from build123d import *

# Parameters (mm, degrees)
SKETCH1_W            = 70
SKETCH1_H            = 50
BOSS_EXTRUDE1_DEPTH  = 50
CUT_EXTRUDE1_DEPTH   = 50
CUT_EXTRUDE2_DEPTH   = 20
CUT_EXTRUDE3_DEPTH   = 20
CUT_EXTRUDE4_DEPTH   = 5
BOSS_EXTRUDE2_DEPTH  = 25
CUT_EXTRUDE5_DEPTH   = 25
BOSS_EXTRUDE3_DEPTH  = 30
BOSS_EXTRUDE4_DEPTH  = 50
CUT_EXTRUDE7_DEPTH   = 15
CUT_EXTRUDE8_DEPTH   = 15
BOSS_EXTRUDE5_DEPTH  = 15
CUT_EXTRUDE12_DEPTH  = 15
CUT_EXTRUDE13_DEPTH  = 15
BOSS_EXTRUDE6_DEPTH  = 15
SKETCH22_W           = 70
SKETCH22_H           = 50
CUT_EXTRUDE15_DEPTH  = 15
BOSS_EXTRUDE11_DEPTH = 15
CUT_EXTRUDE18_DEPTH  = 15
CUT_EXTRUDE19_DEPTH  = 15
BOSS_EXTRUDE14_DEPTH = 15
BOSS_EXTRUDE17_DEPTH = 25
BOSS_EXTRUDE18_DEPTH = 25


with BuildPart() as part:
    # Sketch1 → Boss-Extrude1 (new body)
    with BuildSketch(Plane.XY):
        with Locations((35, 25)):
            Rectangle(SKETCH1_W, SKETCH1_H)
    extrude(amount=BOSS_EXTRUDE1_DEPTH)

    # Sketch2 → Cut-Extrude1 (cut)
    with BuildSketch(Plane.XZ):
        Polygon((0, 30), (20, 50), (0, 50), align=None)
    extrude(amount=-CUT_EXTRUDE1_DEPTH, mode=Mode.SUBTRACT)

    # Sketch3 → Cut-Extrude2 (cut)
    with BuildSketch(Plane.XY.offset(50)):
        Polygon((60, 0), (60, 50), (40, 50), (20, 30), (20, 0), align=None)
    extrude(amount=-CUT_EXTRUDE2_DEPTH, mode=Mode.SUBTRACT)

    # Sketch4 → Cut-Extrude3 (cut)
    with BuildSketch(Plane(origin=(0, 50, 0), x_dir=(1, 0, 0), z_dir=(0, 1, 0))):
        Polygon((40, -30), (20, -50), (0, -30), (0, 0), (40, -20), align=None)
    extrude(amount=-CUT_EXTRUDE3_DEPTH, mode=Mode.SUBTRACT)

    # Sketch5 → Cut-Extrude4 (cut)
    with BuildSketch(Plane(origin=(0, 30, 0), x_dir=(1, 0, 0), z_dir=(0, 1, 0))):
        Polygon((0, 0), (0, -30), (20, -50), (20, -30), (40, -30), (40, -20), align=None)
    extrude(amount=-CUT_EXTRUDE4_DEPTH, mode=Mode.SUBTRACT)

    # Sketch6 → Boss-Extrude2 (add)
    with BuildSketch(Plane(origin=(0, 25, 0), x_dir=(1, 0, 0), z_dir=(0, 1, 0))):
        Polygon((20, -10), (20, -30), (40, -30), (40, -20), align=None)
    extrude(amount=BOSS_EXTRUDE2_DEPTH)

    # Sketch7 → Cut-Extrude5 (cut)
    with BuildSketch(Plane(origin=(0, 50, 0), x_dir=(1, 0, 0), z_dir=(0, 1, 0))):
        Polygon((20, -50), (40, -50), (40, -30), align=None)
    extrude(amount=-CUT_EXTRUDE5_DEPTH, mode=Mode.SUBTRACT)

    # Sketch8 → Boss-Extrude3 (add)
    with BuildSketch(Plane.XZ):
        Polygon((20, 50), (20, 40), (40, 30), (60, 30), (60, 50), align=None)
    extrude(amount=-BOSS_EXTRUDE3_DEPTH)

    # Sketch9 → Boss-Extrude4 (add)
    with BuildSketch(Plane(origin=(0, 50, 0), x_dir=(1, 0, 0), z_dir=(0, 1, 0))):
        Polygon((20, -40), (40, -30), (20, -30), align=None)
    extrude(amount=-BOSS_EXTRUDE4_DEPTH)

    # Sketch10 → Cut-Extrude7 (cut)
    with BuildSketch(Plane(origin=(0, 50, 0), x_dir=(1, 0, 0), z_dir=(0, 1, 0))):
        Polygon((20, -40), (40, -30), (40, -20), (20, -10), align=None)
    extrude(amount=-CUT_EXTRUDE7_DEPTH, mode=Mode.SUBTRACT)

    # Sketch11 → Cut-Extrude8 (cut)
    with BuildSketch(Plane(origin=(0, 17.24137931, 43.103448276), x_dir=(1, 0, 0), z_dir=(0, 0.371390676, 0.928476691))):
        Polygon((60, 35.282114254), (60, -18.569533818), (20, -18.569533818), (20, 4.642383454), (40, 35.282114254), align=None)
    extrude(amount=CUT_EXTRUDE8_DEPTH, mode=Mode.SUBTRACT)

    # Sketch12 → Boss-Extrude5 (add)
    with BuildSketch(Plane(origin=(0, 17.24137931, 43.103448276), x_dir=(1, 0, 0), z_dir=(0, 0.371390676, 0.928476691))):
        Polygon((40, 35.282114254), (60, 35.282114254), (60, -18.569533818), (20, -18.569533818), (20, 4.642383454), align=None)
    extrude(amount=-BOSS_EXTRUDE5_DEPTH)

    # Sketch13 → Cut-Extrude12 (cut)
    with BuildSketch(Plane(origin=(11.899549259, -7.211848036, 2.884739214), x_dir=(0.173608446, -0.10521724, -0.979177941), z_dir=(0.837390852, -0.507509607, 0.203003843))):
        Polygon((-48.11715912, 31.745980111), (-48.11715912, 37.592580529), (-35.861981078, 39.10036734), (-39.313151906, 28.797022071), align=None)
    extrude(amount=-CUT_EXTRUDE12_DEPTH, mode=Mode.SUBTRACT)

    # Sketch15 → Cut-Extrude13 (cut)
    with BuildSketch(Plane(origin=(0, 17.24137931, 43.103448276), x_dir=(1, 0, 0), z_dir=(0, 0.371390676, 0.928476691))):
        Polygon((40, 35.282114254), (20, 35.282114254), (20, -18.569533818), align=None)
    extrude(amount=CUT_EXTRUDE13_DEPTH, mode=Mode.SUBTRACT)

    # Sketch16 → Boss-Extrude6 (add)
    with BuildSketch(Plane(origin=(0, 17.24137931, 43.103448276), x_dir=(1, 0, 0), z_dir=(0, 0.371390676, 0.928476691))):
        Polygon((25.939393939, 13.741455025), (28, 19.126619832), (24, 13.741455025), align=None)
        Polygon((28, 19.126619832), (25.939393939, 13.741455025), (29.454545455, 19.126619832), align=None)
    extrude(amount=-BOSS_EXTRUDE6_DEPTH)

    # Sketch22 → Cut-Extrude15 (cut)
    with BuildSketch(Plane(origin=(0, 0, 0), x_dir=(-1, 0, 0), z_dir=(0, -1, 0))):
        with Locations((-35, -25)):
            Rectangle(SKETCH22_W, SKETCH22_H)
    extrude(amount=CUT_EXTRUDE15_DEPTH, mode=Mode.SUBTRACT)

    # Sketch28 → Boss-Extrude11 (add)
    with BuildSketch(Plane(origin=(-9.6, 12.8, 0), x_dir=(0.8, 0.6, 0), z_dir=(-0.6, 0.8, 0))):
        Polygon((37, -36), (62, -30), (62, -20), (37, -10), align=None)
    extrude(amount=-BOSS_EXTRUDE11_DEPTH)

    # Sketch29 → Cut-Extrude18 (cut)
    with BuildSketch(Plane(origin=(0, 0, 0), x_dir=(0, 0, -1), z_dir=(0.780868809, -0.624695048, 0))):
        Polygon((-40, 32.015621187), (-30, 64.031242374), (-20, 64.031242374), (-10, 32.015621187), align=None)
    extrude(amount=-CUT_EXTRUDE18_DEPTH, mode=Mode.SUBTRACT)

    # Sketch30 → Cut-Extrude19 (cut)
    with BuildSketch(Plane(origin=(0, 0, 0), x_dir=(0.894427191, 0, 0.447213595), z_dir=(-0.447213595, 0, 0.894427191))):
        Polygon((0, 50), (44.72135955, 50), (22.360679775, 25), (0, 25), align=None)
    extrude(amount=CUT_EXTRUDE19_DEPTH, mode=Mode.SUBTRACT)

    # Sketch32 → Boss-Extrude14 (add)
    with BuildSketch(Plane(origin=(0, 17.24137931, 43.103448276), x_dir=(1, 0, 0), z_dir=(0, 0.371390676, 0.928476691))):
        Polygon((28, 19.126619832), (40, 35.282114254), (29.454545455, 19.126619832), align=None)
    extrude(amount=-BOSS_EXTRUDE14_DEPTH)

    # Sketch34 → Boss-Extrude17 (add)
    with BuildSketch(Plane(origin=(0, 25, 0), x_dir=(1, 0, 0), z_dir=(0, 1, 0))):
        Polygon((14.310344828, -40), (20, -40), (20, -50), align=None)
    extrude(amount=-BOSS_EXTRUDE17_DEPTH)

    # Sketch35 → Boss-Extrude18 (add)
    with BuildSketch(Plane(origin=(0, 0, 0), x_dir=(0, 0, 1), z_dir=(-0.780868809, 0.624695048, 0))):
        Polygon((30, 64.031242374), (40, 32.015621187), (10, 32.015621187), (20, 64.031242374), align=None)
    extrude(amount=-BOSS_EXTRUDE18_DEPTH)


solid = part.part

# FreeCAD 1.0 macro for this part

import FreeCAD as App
import Part
import Sketcher
Q = App.Units.Quantity

doc = App.newDocument("Part")
body = doc.addObject("PartDesign::Body", "Body")
body.AllowCompound = True

sketch1 = doc.addObject("Sketcher::SketchObject", "Sketch")
body.addObject(sketch1)
sketch1.AttachmentSupport = (doc.XY_Plane, [""])
sketch1.MapMode = "FlatFace"
sketch1.addGeometry([
    Part.LineSegment(App.Vector(0, 50, 0), App.Vector(0, 0, 0)),
    Part.LineSegment(App.Vector(0, 0, 0), App.Vector(70, 0, 0)),
    Part.LineSegment(App.Vector(70, 0, 0), App.Vector(70, 50, 0)),
    Part.LineSegment(App.Vector(70, 50, 0), App.Vector(0, 50, 0)),
], False)
sketch1.addConstraint([
    Sketcher.Constraint("Coincident", 0, 2, 1, 1),
    Sketcher.Constraint("Coincident", 1, 2, 2, 1),
    Sketcher.Constraint("Coincident", 2, 2, 3, 1),
    Sketcher.Constraint("Coincident", 3, 2, 0, 1),
    Sketcher.Constraint("Vertical", 0),
    Sketcher.Constraint("Horizontal", 1),
    Sketcher.Constraint("Vertical", 2),
    Sketcher.Constraint("Horizontal", 3),
    Sketcher.Constraint("Coincident", 0, 2, -1, 1),
    Sketcher.Constraint("DistanceX", 1, 1, 1, 2, 70.0),
    Sketcher.Constraint("DistanceY", 0, 2, 0, 1, 50.0),
])
pad1 = doc.addObject("PartDesign::Pad", "Pad")
body.addObject(pad1)
pad1.Profile = sketch1
pad1.Length = 50

sketch2 = doc.addObject("Sketcher::SketchObject", "Sketch001")
body.addObject(sketch2)
sketch2.AttachmentSupport = (doc.XZ_Plane, [""])
sketch2.MapMode = "FlatFace"
sketch2.addGeometry([
    Part.LineSegment(App.Vector(0, 30, 0), App.Vector(20, 50, 0)),
    Part.LineSegment(App.Vector(20, 50, 0), App.Vector(0, 50, 0)),
    Part.LineSegment(App.Vector(0, 50, 0), App.Vector(0, 30, 0)),
], False)
sketch2.addConstraint([
    Sketcher.Constraint("Coincident", 0, 2, 1, 1),
    Sketcher.Constraint("Coincident", 1, 2, 2, 1),
    Sketcher.Constraint("Coincident", 2, 2, 0, 1),
    Sketcher.Constraint("Horizontal", 1),
    Sketcher.Constraint("Vertical", 2),
    Sketcher.Constraint("PointOnObject", 1, 2, -2),
    Sketcher.Constraint("Equal", 1, 2),
    Sketcher.Constraint("DistanceX", 1, 2, 1, 1, 20.0),
    Sketcher.Constraint("DistanceY", -1, 1, 0, 2, 50.0),
])
pocket1 = doc.addObject("PartDesign::Pocket", "Pocket")
body.addObject(pocket1)
pocket1.Profile = sketch2
pocket1.Length = 50

sketch3 = doc.addObject("Sketcher::SketchObject", "Sketch002")
body.addObject(sketch3)
sketch3.AttachmentSupport = (doc.XY_Plane, [""])
sketch3.MapMode = "FlatFace"
sketch3.AttachmentOffset = App.Placement(App.Vector(0, 0, 50), App.Rotation())
sketch3.addGeometry([
    Part.LineSegment(App.Vector(60, 0, 0), App.Vector(60, 50, 0)),
    Part.LineSegment(App.Vector(60, 50, 0), App.Vector(40, 50, 0)),
    Part.LineSegment(App.Vector(40, 50, 0), App.Vector(20, 30, 0)),
    Part.LineSegment(App.Vector(20, 30, 0), App.Vector(20, 0, 0)),
    Part.LineSegment(App.Vector(20, 0, 0), App.Vector(60, 0, 0)),
], False)
sketch3.addConstraint([
    Sketcher.Constraint("Coincident", 0, 2, 1, 1),
    Sketcher.Constraint("Coincident", 1, 2, 2, 1),
    Sketcher.Constraint("Coincident", 2, 2, 3, 1),
    Sketcher.Constraint("Coincident", 3, 2, 4, 1),
    Sketcher.Constraint("Coincident", 4, 2, 0, 1),
    Sketcher.Constraint("Vertical", 0),
    Sketcher.Constraint("Horizontal", 1),
    Sketcher.Constraint("Vertical", 3),
    Sketcher.Constraint("Horizontal", 4),
    Sketcher.Constraint("PointOnObject", 3, 2, -1),
    Sketcher.Constraint("DistanceX", 1, 2, 1, 1, 20.0),
    Sketcher.Constraint("DistanceX", 4, 1, 4, 2, 40.0),
    Sketcher.Constraint("DistanceY", 0, 1, 0, 2, 50.0),
    Sketcher.Constraint("DistanceY", 3, 2, 3, 1, 30.0),
    Sketcher.Constraint("DistanceX", -1, 1, 0, 2, 60.0),
])
pocket2 = doc.addObject("PartDesign::Pocket", "Pocket001")
body.addObject(pocket2)
pocket2.Profile = sketch3
pocket2.Length = 20

sketch4 = doc.addObject("Sketcher::SketchObject", "Sketch003")
body.addObject(sketch4)
sketch4.AttachmentSupport = (doc.XZ_Plane, [""])
sketch4.MapMode = "FlatFace"
sketch4.AttachmentOffset = App.Placement(App.Vector(0, 0, -50), App.Rotation())
sketch4.addGeometry([
    Part.LineSegment(App.Vector(20, 50, 0), App.Vector(40, 30, 0)),
    Part.LineSegment(App.Vector(40, 30, 0), App.Vector(40, 20, 0)),
    Part.LineSegment(App.Vector(40, 20, 0), App.Vector(0, 0, 0)),
    Part.LineSegment(App.Vector(0, 0, 0), App.Vector(0, 30, 0)),
    Part.LineSegment(App.Vector(0, 30, 0), App.Vector(20, 50, 0)),
], False)
sketch4.addConstraint([
    Sketcher.Constraint("Coincident", 0, 2, 1, 1),
    Sketcher.Constraint("Coincident", 1, 2, 2, 1),
    Sketcher.Constraint("Coincident", 2, 2, 3, 1),
    Sketcher.Constraint("Coincident", 3, 2, 4, 1),
    Sketcher.Constraint("Coincident", 4, 2, 0, 1),
    Sketcher.Constraint("Vertical", 1),
    Sketcher.Constraint("Vertical", 3),
    Sketcher.Constraint("Coincident", 2, 2, -1, 1),
    Sketcher.Constraint("Perpendicular", 0, 4),
    Sketcher.Constraint("Horizontal", 0, 2, 3, 2),
    Sketcher.Constraint("Equal", 0, 4),
    Sketcher.Constraint("DistanceY", 1, 2, 1, 1, 10.0),
    Sketcher.Constraint("DistanceY", 3, 1, 3, 2, 30.0),
    Sketcher.Constraint("DistanceX", -1, 1, 0, 2, 40.0),
])
pocket3 = doc.addObject("PartDesign::Pocket", "Pocket002")
body.addObject(pocket3)
pocket3.Profile = sketch4
pocket3.Length = 20
pocket3.Reversed = True

sketch5 = doc.addObject("Sketcher::SketchObject", "Sketch004")
body.addObject(sketch5)
sketch5.AttachmentSupport = (doc.XZ_Plane, [""])
sketch5.MapMode = "FlatFace"
sketch5.AttachmentOffset = App.Placement(App.Vector(0, 0, -30), App.Rotation())
sketch5.addGeometry([
    Part.LineSegment(App.Vector(0, 0, 0), App.Vector(0, 30, 0)),
    Part.LineSegment(App.Vector(0, 30, 0), App.Vector(20, 50, 0)),
    Part.LineSegment(App.Vector(20, 50, 0), App.Vector(20, 30, 0)),
    Part.LineSegment(App.Vector(20, 30, 0), App.Vector(40, 30, 0)),
    Part.LineSegment(App.Vector(40, 30, 0), App.Vector(40, 20, 0)),
    Part.LineSegment(App.Vector(40, 20, 0), App.Vector(0, 0, 0)),
], False)
sketch5.addConstraint([
    Sketcher.Constraint("Coincident", 0, 2, 1, 1),
    Sketcher.Constraint("Coincident", 1, 2, 2, 1),
    Sketcher.Constraint("Coincident", 2, 2, 3, 1),
    Sketcher.Constraint("Coincident", 3, 2, 4, 1),
    Sketcher.Constraint("Coincident", 4, 2, 5, 1),
    Sketcher.Constraint("Coincident", 5, 2, 0, 1),
    Sketcher.Constraint("Vertical", 0),
    Sketcher.Constraint("Vertical", 2),
    Sketcher.Constraint("Horizontal", 3),
    Sketcher.Constraint("Vertical", 4),
    Sketcher.Constraint("Coincident", 5, 2, -1, 1),
    Sketcher.Constraint("Horizontal", 0, 2, 2, 2),
    Sketcher.Constraint("Equal", 3, 2),
    Sketcher.Constraint("DistanceX", 3, 1, 3, 2, 20.0),
    Sketcher.Constraint("DistanceY", 0, 1, 0, 2, 30.0),
    Sketcher.Constraint("DistanceY", 4, 2, 4, 1, 10.0),
    Sketcher.Constraint("Angle", 1, Q("45 deg")),
])
pocket4 = doc.addObject("PartDesign::Pocket", "Pocket003")
body.addObject(pocket4)
pocket4.Profile = sketch5
pocket4.Length = 5
pocket4.Reversed = True

sketch6 = doc.addObject("Sketcher::SketchObject", "Sketch005")
body.addObject(sketch6)
sketch6.AttachmentSupport = (doc.XZ_Plane, [""])
sketch6.MapMode = "FlatFace"
sketch6.AttachmentOffset = App.Placement(App.Vector(0, 0, -25), App.Rotation())
sketch6.addGeometry([
    Part.LineSegment(App.Vector(20, 10, 0), App.Vector(20, 30, 0)),
    Part.LineSegment(App.Vector(20, 30, 0), App.Vector(40, 30, 0)),
    Part.LineSegment(App.Vector(40, 30, 0), App.Vector(40, 20, 0)),
    Part.LineSegment(App.Vector(40, 20, 0), App.Vector(20, 10, 0)),
], False)
sketch6.addConstraint([
    Sketcher.Constraint("Coincident", 0, 2, 1, 1),
    Sketcher.Constraint("Coincident", 1, 2, 2, 1),
    Sketcher.Constraint("Coincident", 2, 2, 3, 1),
    Sketcher.Constraint("Coincident", 3, 2, 0, 1),
    Sketcher.Constraint("Vertical", 0),
    Sketcher.Constraint("Horizontal", 1),
    Sketcher.Constraint("Vertical", 2),
    Sketcher.Constraint("Equal", 1, 0),
    Sketcher.Constraint("DistanceX", 1, 1, 1, 2, 20.0),
    Sketcher.Constraint("DistanceY", 2, 2, 2, 1, 10.0),
    Sketcher.Constraint("DistanceX", -1, 1, 0, 2, 20.0),
    Sketcher.Constraint("DistanceY", -1, 1, 0, 2, 30.0),
])
pad2 = doc.addObject("PartDesign::Pad", "Pad001")
body.addObject(pad2)
pad2.Profile = sketch6
pad2.Length = 25
pad2.Reversed = True

sketch7 = doc.addObject("Sketcher::SketchObject", "Sketch006")
body.addObject(sketch7)
sketch7.AttachmentSupport = (doc.XZ_Plane, [""])
sketch7.MapMode = "FlatFace"
sketch7.AttachmentOffset = App.Placement(App.Vector(0, 0, -50), App.Rotation())
sketch7.addGeometry([
    Part.LineSegment(App.Vector(20, 50, 0), App.Vector(40, 50, 0)),
    Part.LineSegment(App.Vector(40, 50, 0), App.Vector(40, 30, 0)),
    Part.LineSegment(App.Vector(40, 30, 0), App.Vector(20, 50, 0)),
], False)
sketch7.addConstraint([
    Sketcher.Constraint("Coincident", 0, 2, 1, 1),
    Sketcher.Constraint("Coincident", 1, 2, 2, 1),
    Sketcher.Constraint("Coincident", 2, 2, 0, 1),
    Sketcher.Constraint("Horizontal", 0),
    Sketcher.Constraint("Vertical", 1),
    Sketcher.Constraint("Equal", 0, 1),
    Sketcher.Constraint("DistanceX", 0, 1, 0, 2, 20.0),
    Sketcher.Constraint("DistanceX", -1, 1, 0, 2, 40.0),
    Sketcher.Constraint("DistanceY", -1, 1, 0, 2, 50.0),
])
pocket5 = doc.addObject("PartDesign::Pocket", "Pocket004")
body.addObject(pocket5)
pocket5.Profile = sketch7
pocket5.Length = 25
pocket5.Reversed = True

sketch8 = doc.addObject("Sketcher::SketchObject", "Sketch007")
body.addObject(sketch8)
sketch8.AttachmentSupport = (doc.XZ_Plane, [""])
sketch8.MapMode = "FlatFace"
sketch8.addGeometry([
    Part.LineSegment(App.Vector(20, 50, 0), App.Vector(20, 40, 0)),
    Part.LineSegment(App.Vector(20, 40, 0), App.Vector(40, 30, 0)),
    Part.LineSegment(App.Vector(40, 30, 0), App.Vector(60, 30, 0)),
    Part.LineSegment(App.Vector(60, 30, 0), App.Vector(60, 50, 0)),
    Part.LineSegment(App.Vector(60, 50, 0), App.Vector(20, 50, 0)),
], False)
sketch8.addConstraint([
    Sketcher.Constraint("Coincident", 0, 2, 1, 1),
    Sketcher.Constraint("Coincident", 1, 2, 2, 1),
    Sketcher.Constraint("Coincident", 2, 2, 3, 1),
    Sketcher.Constraint("Coincident", 3, 2, 4, 1),
    Sketcher.Constraint("Coincident", 4, 2, 0, 1),
    Sketcher.Constraint("Vertical", 0),
    Sketcher.Constraint("Horizontal", 2),
    Sketcher.Constraint("Vertical", 3),
    Sketcher.Constraint("Horizontal", 4),
    Sketcher.Constraint("Equal", 2, 3),
    Sketcher.Constraint("DistanceX", 2, 1, 2, 2, 20.0),
    Sketcher.Constraint("DistanceX", 4, 2, 4, 1, 40.0),
    Sketcher.Constraint("DistanceY", 0, 2, 0, 1, 10.0),
    Sketcher.Constraint("DistanceX", -1, 1, 0, 2, 20.0),
    Sketcher.Constraint("DistanceY", -1, 1, 0, 2, 40.0),
])
pad3 = doc.addObject("PartDesign::Pad", "Pad002")
body.addObject(pad3)
pad3.Profile = sketch8
pad3.Length = 30
pad3.Reversed = True

sketch9 = doc.addObject("Sketcher::SketchObject", "Sketch008")
body.addObject(sketch9)
sketch9.AttachmentSupport = (doc.XZ_Plane, [""])
sketch9.MapMode = "FlatFace"
sketch9.AttachmentOffset = App.Placement(App.Vector(0, 0, -50), App.Rotation())
sketch9.addGeometry([
    Part.LineSegment(App.Vector(20, 40, 0), App.Vector(40, 30, 0)),
    Part.LineSegment(App.Vector(40, 30, 0), App.Vector(20, 30, 0)),
    Part.LineSegment(App.Vector(20, 30, 0), App.Vector(20, 40, 0)),
], False)
sketch9.addConstraint([
    Sketcher.Constraint("Coincident", 0, 2, 1, 1),
    Sketcher.Constraint("Coincident", 1, 2, 2, 1),
    Sketcher.Constraint("Coincident", 2, 2, 0, 1),
    Sketcher.Constraint("Horizontal", 1),
    Sketcher.Constraint("Vertical", 2),
    Sketcher.Constraint("DistanceX", 1, 2, 1, 1, 20.0),
    Sketcher.Constraint("DistanceY", 2, 1, 2, 2, 10.0),
    Sketcher.Constraint("DistanceX", -1, 1, 0, 2, 40.0),
    Sketcher.Constraint("DistanceY", -1, 1, 0, 2, 30.0),
])
pad4 = doc.addObject("PartDesign::Pad", "Pad003")
body.addObject(pad4)
pad4.Profile = sketch9
pad4.Length = 50

sketch10 = doc.addObject("Sketcher::SketchObject", "Sketch009")
body.addObject(sketch10)
sketch10.AttachmentSupport = (doc.XZ_Plane, [""])
sketch10.MapMode = "FlatFace"
sketch10.AttachmentOffset = App.Placement(App.Vector(0, 0, -50), App.Rotation())
sketch10.addGeometry([
    Part.LineSegment(App.Vector(20, 40, 0), App.Vector(40, 30, 0)),
    Part.LineSegment(App.Vector(40, 30, 0), App.Vector(40, 20, 0)),
    Part.LineSegment(App.Vector(40, 20, 0), App.Vector(20, 10, 0)),
    Part.LineSegment(App.Vector(20, 10, 0), App.Vector(20, 40, 0)),
], False)
sketch10.addConstraint([
    Sketcher.Constraint("Coincident", 0, 2, 1, 1),
    Sketcher.Constraint("Coincident", 1, 2, 2, 1),
    Sketcher.Constraint("Coincident", 2, 2, 3, 1),
    Sketcher.Constraint("Coincident", 3, 2, 0, 1),
    Sketcher.Constraint("Vertical", 1),
    Sketcher.Constraint("Vertical", 3),
    Sketcher.Constraint("Equal", 0, 2),
    Sketcher.Constraint("DistanceY", 1, 2, 1, 1, 10.0),
    Sketcher.Constraint("DistanceY", 3, 1, 3, 2, 30.0),
    Sketcher.Constraint("DistanceX", -1, 1, 0, 2, 40.0),
    Sketcher.Constraint("DistanceY", -1, 1, 0, 2, 30.0),
    Sketcher.Constraint("DistanceX", -1, 1, 2, 2, 20.0),
])
pocket6 = doc.addObject("PartDesign::Pocket", "Pocket005")
body.addObject(pocket6)
pocket6.Profile = sketch10
pocket6.Length = 15
pocket6.Reversed = True

sketch11 = doc.addObject("Sketcher::SketchObject", "Sketch010")
body.addObject(sketch11)
sketch11.Placement = App.Placement(App.Vector(0, 17.241379, 43.103448), App.Rotation(App.Vector(1, 0, 0), App.Vector(0, 0.928476691, -0.371390676), App.Vector(0, 0.371390676, 0.928476691), "ZXY"))
sketch11.addGeometry([
    Part.LineSegment(App.Vector(60, -19, 0), App.Vector(60, 35, 0)),
    Part.LineSegment(App.Vector(60, 35, 0), App.Vector(40, 35, 0)),
    Part.LineSegment(App.Vector(40, 35, 0), App.Vector(20, 5, 0)),
    Part.LineSegment(App.Vector(20, 5, 0), App.Vector(20, -19, 0)),
    Part.LineSegment(App.Vector(20, -19, 0), App.Vector(60, -19, 0)),
], False)
sketch11.addConstraint([
    Sketcher.Constraint("Coincident", 0, 2, 1, 1),
    Sketcher.Constraint("Coincident", 1, 2, 2, 1),
    Sketcher.Constraint("Coincident", 2, 2, 3, 1),
    Sketcher.Constraint("Coincident", 3, 2, 4, 1),
    Sketcher.Constraint("Coincident", 4, 2, 0, 1),
    Sketcher.Constraint("Vertical", 0),
    Sketcher.Constraint("Horizontal", 1),
    Sketcher.Constraint("Vertical", 3),
    Sketcher.Constraint("Horizontal", 4),
    Sketcher.Constraint("DistanceX", 1, 2, 1, 1, 20.0),
    Sketcher.Constraint("DistanceX", 4, 1, 4, 2, 40.0),
    Sketcher.Constraint("DistanceX", -1, 1, 0, 2, 60.0),
    Sketcher.Constraint("DistanceY", 0, 1, 0, 2, 53.851648),
    Sketcher.Constraint("Distance", 2, 36.589522),
    Sketcher.Constraint("DistanceY", -1, 1, 0, 2, 35.282114),
])
pocket7 = doc.addObject("PartDesign::Pocket", "Pocket006")
body.addObject(pocket7)
pocket7.Profile = sketch11
pocket7.Length = 15
pocket7.Reversed = True

sketch12 = doc.addObject("Sketcher::SketchObject", "Sketch011")
body.addObject(sketch12)
sketch12.Placement = App.Placement(App.Vector(0, 17.241379, 43.103448), App.Rotation(App.Vector(1, 0, 0), App.Vector(0, 0.928476691, -0.371390676), App.Vector(0, 0.371390676, 0.928476691), "ZXY"))
sketch12.addGeometry([
    Part.LineSegment(App.Vector(60, 35, 0), App.Vector(40, 35, 0)),
    Part.LineSegment(App.Vector(40, 35, 0), App.Vector(20, 5, 0)),
    Part.LineSegment(App.Vector(20, 5, 0), App.Vector(20, -19, 0)),
    Part.LineSegment(App.Vector(20, -19, 0), App.Vector(60, -19, 0)),
    Part.LineSegment(App.Vector(60, -19, 0), App.Vector(60, 35, 0)),
], False)
sketch12.addConstraint([
    Sketcher.Constraint("Coincident", 0, 2, 1, 1),
    Sketcher.Constraint("Coincident", 1, 2, 2, 1),
    Sketcher.Constraint("Coincident", 2, 2, 3, 1),
    Sketcher.Constraint("Coincident", 3, 2, 4, 1),
    Sketcher.Constraint("Coincident", 4, 2, 0, 1),
    Sketcher.Constraint("Horizontal", 0),
    Sketcher.Constraint("Vertical", 2),
    Sketcher.Constraint("Horizontal", 3),
    Sketcher.Constraint("Vertical", 4),
    Sketcher.Constraint("DistanceX", 0, 2, 0, 1, 20.0),
    Sketcher.Constraint("DistanceX", 3, 1, 3, 2, 40.0),
    Sketcher.Constraint("DistanceX", -1, 1, 0, 2, 40.0),
    Sketcher.Constraint("DistanceY", 4, 1, 4, 2, 53.851648),
    Sketcher.Constraint("Distance", 1, 36.589522),
    Sketcher.Constraint("DistanceY", -1, 1, 0, 2, 35.282114),
])
pad5 = doc.addObject("PartDesign::Pad", "Pad004")
body.addObject(pad5)
pad5.Profile = sketch12
pad5.Length = 15
pad5.Reversed = True

sketch13 = doc.addObject("Sketcher::SketchObject", "Sketch012")
body.addObject(sketch13)
sketch13.Placement = App.Placement(App.Vector(11.899549, -7.211848, 2.884739), App.Rotation(App.Vector(0.173608446, -0.10521724, -0.979177941), App.Vector(0.518301716, 0.855197832, 0), App.Vector(0.837390852, -0.507509607, 0.203003843), "ZXY"))
sketch13.addGeometry([
    Part.LineSegment(App.Vector(-48, 38, 0), App.Vector(-48, 32, 0)),
    Part.LineSegment(App.Vector(-48, 32, 0), App.Vector(-39, 29, 0)),
    Part.LineSegment(App.Vector(-39, 29, 0), App.Vector(-36, 39, 0)),
    Part.LineSegment(App.Vector(-36, 39, 0), App.Vector(-48, 38, 0)),
], False)
sketch13.addConstraint([
    Sketcher.Constraint("Coincident", 0, 2, 1, 1),
    Sketcher.Constraint("Coincident", 1, 2, 2, 1),
    Sketcher.Constraint("Coincident", 2, 2, 3, 1),
    Sketcher.Constraint("Coincident", 3, 2, 0, 1),
    Sketcher.Constraint("Vertical", 0),
    Sketcher.Constraint("Perpendicular", 1, 2),
    Sketcher.Constraint("DistanceY", 0, 2, 0, 1, 5.8466),
    Sketcher.Constraint("Distance", 2, 10.865979),
    Sketcher.Constraint("DistanceX", 0, 2, -1, 1, 48.117159),
    Sketcher.Constraint("DistanceY", -1, 1, 0, 2, 31.74598),
    Sketcher.Constraint("DistanceX", 1, 2, -1, 1, 39.313152),
    Sketcher.Constraint("DistanceX", 2, 2, -1, 1, 35.861981),
])
pocket8 = doc.addObject("PartDesign::Pocket", "Pocket007")
body.addObject(pocket8)
pocket8.Profile = sketch13
pocket8.Length = 15

sketch14 = doc.addObject("Sketcher::SketchObject", "Sketch013")
body.addObject(sketch14)
sketch14.Placement = App.Placement(App.Vector(0, 17.241379, 43.103448), App.Rotation(App.Vector(1, 0, 0), App.Vector(0, 0.928476691, -0.371390676), App.Vector(0, 0.371390676, 0.928476691), "ZXY"))
sketch14.addGeometry([
    Part.LineSegment(App.Vector(40, 35, 0), App.Vector(20, 35, 0)),
    Part.LineSegment(App.Vector(20, 35, 0), App.Vector(20, -19, 0)),
    Part.LineSegment(App.Vector(20, -19, 0), App.Vector(40, 35, 0)),
], False)
sketch14.addConstraint([
    Sketcher.Constraint("Coincident", 0, 2, 1, 1),
    Sketcher.Constraint("Coincident", 1, 2, 2, 1),
    Sketcher.Constraint("Coincident", 2, 2, 0, 1),
    Sketcher.Constraint("Horizontal", 0),
    Sketcher.Constraint("Vertical", 1),
    Sketcher.Constraint("DistanceX", 0, 2, 0, 1, 20.0),
    Sketcher.Constraint("DistanceX", -1, 1, 0, 2, 20.0),
    Sketcher.Constraint("DistanceY", 1, 2, 1, 1, 53.851648),
    Sketcher.Constraint("DistanceY", -1, 1, 0, 2, 35.282114),
])
pocket9 = doc.addObject("PartDesign::Pocket", "Pocket008")
body.addObject(pocket9)
pocket9.Profile = sketch14
pocket9.Length = 15
pocket9.Reversed = True

sketch15 = doc.addObject("Sketcher::SketchObject", "Sketch014")
body.addObject(sketch15)
sketch15.Placement = App.Placement(App.Vector(0, 17.241379, 43.103448), App.Rotation(App.Vector(1, 0, 0), App.Vector(0, 0.928476691, -0.371390676), App.Vector(0, 0.371390676, 0.928476691), "ZXY"))
sketch15.addGeometry([
    Part.LineSegment(App.Vector(28, 19.1, 0), App.Vector(24, 13.7, 0)),
    Part.LineSegment(App.Vector(24, 13.7, 0), App.Vector(25.9, 13.7, 0)),
    Part.LineSegment(App.Vector(25.9, 13.7, 0), App.Vector(29.5, 19.1, 0)),
    Part.LineSegment(App.Vector(29.5, 19.1, 0), App.Vector(28, 19.1, 0)),
], False)
sketch15.addConstraint([
    Sketcher.Constraint("Coincident", 0, 2, 1, 1),
    Sketcher.Constraint("Coincident", 1, 2, 2, 1),
    Sketcher.Constraint("Coincident", 2, 2, 3, 1),
    Sketcher.Constraint("Coincident", 3, 2, 0, 1),
    Sketcher.Constraint("Horizontal", 1),
    Sketcher.Constraint("Horizontal", 3),
    Sketcher.Constraint("DistanceX", -1, 1, 0, 2, 24.0),
    Sketcher.Constraint("DistanceX", -1, 1, 3, 2, 28.0),
    Sketcher.Constraint("DistanceX", 1, 1, 1, 2, 1.939394),
    Sketcher.Constraint("DistanceX", 3, 2, 3, 1, 1.454545),
    Sketcher.Constraint("DistanceY", -1, 1, 2, 2, 19.12662),
    Sketcher.Constraint("Distance", 0, 6.708204),
])
pad6 = doc.addObject("PartDesign::Pad", "Pad005")
body.addObject(pad6)
pad6.Profile = sketch15
pad6.Length = 15
pad6.Reversed = True

sketch16 = doc.addObject("Sketcher::SketchObject", "Sketch015")
body.addObject(sketch16)
sketch16.AttachmentSupport = (doc.XZ_Plane, [""])
sketch16.MapMode = "FlatFace"
sketch16.addGeometry([
    Part.LineSegment(App.Vector(70, 0, 0), App.Vector(70, 50, 0)),
    Part.LineSegment(App.Vector(70, 50, 0), App.Vector(0, 50, 0)),
    Part.LineSegment(App.Vector(0, 50, 0), App.Vector(0, 0, 0)),
    Part.LineSegment(App.Vector(0, 0, 0), App.Vector(70, 0, 0)),
], False)
sketch16.addConstraint([
    Sketcher.Constraint("Coincident", 0, 2, 1, 1),
    Sketcher.Constraint("Coincident", 1, 2, 2, 1),
    Sketcher.Constraint("Coincident", 2, 2, 3, 1),
    Sketcher.Constraint("Coincident", 3, 2, 0, 1),
    Sketcher.Constraint("Vertical", 0),
    Sketcher.Constraint("Horizontal", 1),
    Sketcher.Constraint("Vertical", 2),
    Sketcher.Constraint("Horizontal", 3),
    Sketcher.Constraint("Coincident", 2, 2, -1, 1),
    Sketcher.Constraint("DistanceX", 1, 2, 1, 1, 70.0),
    Sketcher.Constraint("DistanceY", 0, 1, 0, 2, 50.0),
])
pocket10 = doc.addObject("PartDesign::Pocket", "Pocket009")
body.addObject(pocket10)
pocket10.Profile = sketch16
pocket10.Length = 15
pocket10.Reversed = True

sketch17 = doc.addObject("Sketcher::SketchObject", "Sketch016")
body.addObject(sketch17)
sketch17.Placement = App.Placement(App.Vector(-9.6, 12.8, 0), App.Rotation(App.Vector(0.8, 0.6, 0), App.Vector(0, 0, -1), App.Vector(-0.6, 0.8, 0), "ZXY"))
sketch17.addGeometry([
    Part.LineSegment(App.Vector(37, -36, 0), App.Vector(62, -30, 0)),
    Part.LineSegment(App.Vector(62, -30, 0), App.Vector(62, -20, 0)),
    Part.LineSegment(App.Vector(62, -20, 0), App.Vector(37, -10, 0)),
    Part.LineSegment(App.Vector(37, -10, 0), App.Vector(37, -36, 0)),
], False)
sketch17.addConstraint([
    Sketcher.Constraint("Coincident", 0, 2, 1, 1),
    Sketcher.Constraint("Coincident", 1, 2, 2, 1),
    Sketcher.Constraint("Coincident", 2, 2, 3, 1),
    Sketcher.Constraint("Coincident", 3, 2, 0, 1),
    Sketcher.Constraint("Vertical", 1),
    Sketcher.Constraint("Vertical", 3),
    Sketcher.Constraint("DistanceY", 1, 1, 1, 2, 10.0),
    Sketcher.Constraint("DistanceY", 3, 2, 3, 1, 26.0),
    Sketcher.Constraint("DistanceX", -1, 1, 0, 2, 62.0),
    Sketcher.Constraint("DistanceY", 0, 2, -1, 1, 30.0),
    Sketcher.Constraint("DistanceX", -1, 1, 2, 2, 37.0),
    Sketcher.Constraint("DistanceY", 2, 2, -1, 1, 10.0),
])
pad7 = doc.addObject("PartDesign::Pad", "Pad006")
body.addObject(pad7)
pad7.Profile = sketch17
pad7.Length = 15
pad7.Reversed = True

sketch18 = doc.addObject("Sketcher::SketchObject", "Sketch017")
body.addObject(sketch18)
sketch18.Placement = App.Placement(App.Vector(0, 0, 0), App.Rotation(App.Vector(0, 0, -1), App.Vector(0.624695048, 0.780868809, 0), App.Vector(0.780868809, -0.624695048, 0), "ZXY"))
sketch18.addGeometry([
    Part.LineSegment(App.Vector(-30, 64, 0), App.Vector(-40, 32, 0)),
    Part.LineSegment(App.Vector(-40, 32, 0), App.Vector(-10, 32, 0)),
    Part.LineSegment(App.Vector(-10, 32, 0), App.Vector(-20, 64, 0)),
    Part.LineSegment(App.Vector(-20, 64, 0), App.Vector(-30, 64, 0)),
], False)
sketch18.addConstraint([
    Sketcher.Constraint("Coincident", 0, 2, 1, 1),
    Sketcher.Constraint("Coincident", 1, 2, 2, 1),
    Sketcher.Constraint("Coincident", 2, 2, 3, 1),
    Sketcher.Constraint("Coincident", 3, 2, 0, 1),
    Sketcher.Constraint("Horizontal", 1),
    Sketcher.Constraint("Horizontal", 3),
    Sketcher.Constraint("Equal", 0, 2),
    Sketcher.Constraint("DistanceX", 1, 1, 1, 2, 30.0),
    Sketcher.Constraint("DistanceX", 3, 2, 3, 1, 10.0),
    Sketcher.Constraint("DistanceX", 0, 2, -1, 1, 40.0),
    Sketcher.Constraint("Distance", 0, 33.54102),
    Sketcher.Constraint("DistanceY", -1, 1, 0, 2, 32.015621),
])
pocket11 = doc.addObject("PartDesign::Pocket", "Pocket010")
body.addObject(pocket11)
pocket11.Profile = sketch18
pocket11.Length = 15

sketch19 = doc.addObject("Sketcher::SketchObject", "Sketch018")
body.addObject(sketch19)
sketch19.Placement = App.Placement(App.Vector(0, 0, 0), App.Rotation(App.Vector(0.894427191, 0, 0.447213595), App.Vector(0, 1, 0), App.Vector(-0.447213595, 0, 0.894427191), "ZXY"))
sketch19.addGeometry([
    Part.LineSegment(App.Vector(45, 50, 0), App.Vector(0, 50, 0)),
    Part.LineSegment(App.Vector(0, 50, 0), App.Vector(0, 25, 0)),
    Part.LineSegment(App.Vector(0, 25, 0), App.Vector(22, 25, 0)),
    Part.LineSegment(App.Vector(22, 25, 0), App.Vector(45, 50, 0)),
], False)
sketch19.addConstraint([
    Sketcher.Constraint("Coincident", 0, 2, 1, 1),
    Sketcher.Constraint("Coincident", 1, 2, 2, 1),
    Sketcher.Constraint("Coincident", 2, 2, 3, 1),
    Sketcher.Constraint("Coincident", 3, 2, 0, 1),
    Sketcher.Constraint("Horizontal", 0),
    Sketcher.Constraint("Vertical", 1),
    Sketcher.Constraint("Horizontal", 2),
    Sketcher.Constraint("PointOnObject", 0, 2, -2),
    Sketcher.Constraint("DistanceY", 1, 2, 1, 1, 25.0),
    Sketcher.Constraint("DistanceY", -1, 1, 0, 2, 50.0),
    Sketcher.Constraint("DistanceX", 0, 2, 0, 1, 44.72136),
    Sketcher.Constraint("DistanceX", 2, 1, 2, 2, 22.36068),
])
pocket12 = doc.addObject("PartDesign::Pocket", "Pocket011")
body.addObject(pocket12)
pocket12.Profile = sketch19
pocket12.Length = 15
pocket12.Reversed = True

sketch20 = doc.addObject("Sketcher::SketchObject", "Sketch019")
body.addObject(sketch20)
sketch20.Placement = App.Placement(App.Vector(0, 17.241379, 43.103448), App.Rotation(App.Vector(1, 0, 0), App.Vector(0, 0.928476691, -0.371390676), App.Vector(0, 0.371390676, 0.928476691), "ZXY"))
sketch20.addGeometry([
    Part.LineSegment(App.Vector(40, 35.3, 0), App.Vector(28, 19.1, 0)),
    Part.LineSegment(App.Vector(28, 19.1, 0), App.Vector(29.5, 19.1, 0)),
    Part.LineSegment(App.Vector(29.5, 19.1, 0), App.Vector(40, 35.3, 0)),
], False)
sketch20.addConstraint([
    Sketcher.Constraint("Coincident", 0, 2, 1, 1),
    Sketcher.Constraint("Coincident", 1, 2, 2, 1),
    Sketcher.Constraint("Coincident", 2, 2, 0, 1),
    Sketcher.Constraint("Horizontal", 1),
    Sketcher.Constraint("DistanceX", -1, 1, 0, 2, 28.0),
    Sketcher.Constraint("DistanceX", -1, 1, 2, 2, 40.0),
    Sketcher.Constraint("Distance", 0, 20.124612),
    Sketcher.Constraint("DistanceX", 1, 1, 1, 2, 1.454545),
    Sketcher.Constraint("DistanceY", -1, 1, 0, 2, 19.12662),
])
pad8 = doc.addObject("PartDesign::Pad", "Pad007")
body.addObject(pad8)
pad8.Profile = sketch20
pad8.Length = 15
pad8.Reversed = True

sketch21 = doc.addObject("Sketcher::SketchObject", "Sketch020")
body.addObject(sketch21)
sketch21.AttachmentSupport = (doc.XZ_Plane, [""])
sketch21.MapMode = "FlatFace"
sketch21.AttachmentOffset = App.Placement(App.Vector(0, 0, -25), App.Rotation())
sketch21.addGeometry([
    Part.LineSegment(App.Vector(20, 40, 0), App.Vector(14, 40, 0)),
    Part.LineSegment(App.Vector(14, 40, 0), App.Vector(20, 50, 0)),
    Part.LineSegment(App.Vector(20, 50, 0), App.Vector(20, 40, 0)),
], False)
sketch21.addConstraint([
    Sketcher.Constraint("Coincident", 0, 2, 1, 1),
    Sketcher.Constraint("Coincident", 1, 2, 2, 1),
    Sketcher.Constraint("Coincident", 2, 2, 0, 1),
    Sketcher.Constraint("Horizontal", 0),
    Sketcher.Constraint("Vertical", 2),
    Sketcher.Constraint("DistanceY", 2, 2, 2, 1, 10.0),
    Sketcher.Constraint("DistanceY", -1, 1, 0, 2, 40.0),
    Sketcher.Constraint("DistanceX", -1, 1, 1, 2, 20.0),
    Sketcher.Constraint("Distance", 1, 11.505311),
])
pad9 = doc.addObject("PartDesign::Pad", "Pad008")
body.addObject(pad9)
pad9.Profile = sketch21
pad9.Length = 25

sketch22 = doc.addObject("Sketcher::SketchObject", "Sketch021")
body.addObject(sketch22)
sketch22.Placement = App.Placement(App.Vector(0, 0, 0), App.Rotation(App.Vector(0, 0, 1), App.Vector(0.624695048, 0.780868809, 0), App.Vector(-0.780868809, 0.624695048, 0), "ZXY"))
sketch22.addGeometry([
    Part.LineSegment(App.Vector(40, 32, 0), App.Vector(30, 64, 0)),
    Part.LineSegment(App.Vector(30, 64, 0), App.Vector(20, 64, 0)),
    Part.LineSegment(App.Vector(20, 64, 0), App.Vector(10, 32, 0)),
    Part.LineSegment(App.Vector(10, 32, 0), App.Vector(40, 32, 0)),
], False)
sketch22.addConstraint([
    Sketcher.Constraint("Coincident", 0, 2, 1, 1),
    Sketcher.Constraint("Coincident", 1, 2, 2, 1),
    Sketcher.Constraint("Coincident", 2, 2, 3, 1),
    Sketcher.Constraint("Coincident", 3, 2, 0, 1),
    Sketcher.Constraint("Horizontal", 1),
    Sketcher.Constraint("Horizontal", 3),
    Sketcher.Constraint("Equal", 0, 2),
    Sketcher.Constraint("DistanceX", 1, 2, 1, 1, 10.0),
    Sketcher.Constraint("DistanceX", 3, 1, 3, 2, 30.0),
    Sketcher.Constraint("DistanceX", -1, 1, 0, 2, 30.0),
    Sketcher.Constraint("Distance", 0, 33.54102),
    Sketcher.Constraint("DistanceY", -1, 1, 2, 2, 32.015621),
])
pad10 = doc.addObject("PartDesign::Pad", "Pad009")
body.addObject(pad10)
pad10.Profile = sketch22
pad10.Length = 25
pad10.Reversed = True

doc.recompute()
